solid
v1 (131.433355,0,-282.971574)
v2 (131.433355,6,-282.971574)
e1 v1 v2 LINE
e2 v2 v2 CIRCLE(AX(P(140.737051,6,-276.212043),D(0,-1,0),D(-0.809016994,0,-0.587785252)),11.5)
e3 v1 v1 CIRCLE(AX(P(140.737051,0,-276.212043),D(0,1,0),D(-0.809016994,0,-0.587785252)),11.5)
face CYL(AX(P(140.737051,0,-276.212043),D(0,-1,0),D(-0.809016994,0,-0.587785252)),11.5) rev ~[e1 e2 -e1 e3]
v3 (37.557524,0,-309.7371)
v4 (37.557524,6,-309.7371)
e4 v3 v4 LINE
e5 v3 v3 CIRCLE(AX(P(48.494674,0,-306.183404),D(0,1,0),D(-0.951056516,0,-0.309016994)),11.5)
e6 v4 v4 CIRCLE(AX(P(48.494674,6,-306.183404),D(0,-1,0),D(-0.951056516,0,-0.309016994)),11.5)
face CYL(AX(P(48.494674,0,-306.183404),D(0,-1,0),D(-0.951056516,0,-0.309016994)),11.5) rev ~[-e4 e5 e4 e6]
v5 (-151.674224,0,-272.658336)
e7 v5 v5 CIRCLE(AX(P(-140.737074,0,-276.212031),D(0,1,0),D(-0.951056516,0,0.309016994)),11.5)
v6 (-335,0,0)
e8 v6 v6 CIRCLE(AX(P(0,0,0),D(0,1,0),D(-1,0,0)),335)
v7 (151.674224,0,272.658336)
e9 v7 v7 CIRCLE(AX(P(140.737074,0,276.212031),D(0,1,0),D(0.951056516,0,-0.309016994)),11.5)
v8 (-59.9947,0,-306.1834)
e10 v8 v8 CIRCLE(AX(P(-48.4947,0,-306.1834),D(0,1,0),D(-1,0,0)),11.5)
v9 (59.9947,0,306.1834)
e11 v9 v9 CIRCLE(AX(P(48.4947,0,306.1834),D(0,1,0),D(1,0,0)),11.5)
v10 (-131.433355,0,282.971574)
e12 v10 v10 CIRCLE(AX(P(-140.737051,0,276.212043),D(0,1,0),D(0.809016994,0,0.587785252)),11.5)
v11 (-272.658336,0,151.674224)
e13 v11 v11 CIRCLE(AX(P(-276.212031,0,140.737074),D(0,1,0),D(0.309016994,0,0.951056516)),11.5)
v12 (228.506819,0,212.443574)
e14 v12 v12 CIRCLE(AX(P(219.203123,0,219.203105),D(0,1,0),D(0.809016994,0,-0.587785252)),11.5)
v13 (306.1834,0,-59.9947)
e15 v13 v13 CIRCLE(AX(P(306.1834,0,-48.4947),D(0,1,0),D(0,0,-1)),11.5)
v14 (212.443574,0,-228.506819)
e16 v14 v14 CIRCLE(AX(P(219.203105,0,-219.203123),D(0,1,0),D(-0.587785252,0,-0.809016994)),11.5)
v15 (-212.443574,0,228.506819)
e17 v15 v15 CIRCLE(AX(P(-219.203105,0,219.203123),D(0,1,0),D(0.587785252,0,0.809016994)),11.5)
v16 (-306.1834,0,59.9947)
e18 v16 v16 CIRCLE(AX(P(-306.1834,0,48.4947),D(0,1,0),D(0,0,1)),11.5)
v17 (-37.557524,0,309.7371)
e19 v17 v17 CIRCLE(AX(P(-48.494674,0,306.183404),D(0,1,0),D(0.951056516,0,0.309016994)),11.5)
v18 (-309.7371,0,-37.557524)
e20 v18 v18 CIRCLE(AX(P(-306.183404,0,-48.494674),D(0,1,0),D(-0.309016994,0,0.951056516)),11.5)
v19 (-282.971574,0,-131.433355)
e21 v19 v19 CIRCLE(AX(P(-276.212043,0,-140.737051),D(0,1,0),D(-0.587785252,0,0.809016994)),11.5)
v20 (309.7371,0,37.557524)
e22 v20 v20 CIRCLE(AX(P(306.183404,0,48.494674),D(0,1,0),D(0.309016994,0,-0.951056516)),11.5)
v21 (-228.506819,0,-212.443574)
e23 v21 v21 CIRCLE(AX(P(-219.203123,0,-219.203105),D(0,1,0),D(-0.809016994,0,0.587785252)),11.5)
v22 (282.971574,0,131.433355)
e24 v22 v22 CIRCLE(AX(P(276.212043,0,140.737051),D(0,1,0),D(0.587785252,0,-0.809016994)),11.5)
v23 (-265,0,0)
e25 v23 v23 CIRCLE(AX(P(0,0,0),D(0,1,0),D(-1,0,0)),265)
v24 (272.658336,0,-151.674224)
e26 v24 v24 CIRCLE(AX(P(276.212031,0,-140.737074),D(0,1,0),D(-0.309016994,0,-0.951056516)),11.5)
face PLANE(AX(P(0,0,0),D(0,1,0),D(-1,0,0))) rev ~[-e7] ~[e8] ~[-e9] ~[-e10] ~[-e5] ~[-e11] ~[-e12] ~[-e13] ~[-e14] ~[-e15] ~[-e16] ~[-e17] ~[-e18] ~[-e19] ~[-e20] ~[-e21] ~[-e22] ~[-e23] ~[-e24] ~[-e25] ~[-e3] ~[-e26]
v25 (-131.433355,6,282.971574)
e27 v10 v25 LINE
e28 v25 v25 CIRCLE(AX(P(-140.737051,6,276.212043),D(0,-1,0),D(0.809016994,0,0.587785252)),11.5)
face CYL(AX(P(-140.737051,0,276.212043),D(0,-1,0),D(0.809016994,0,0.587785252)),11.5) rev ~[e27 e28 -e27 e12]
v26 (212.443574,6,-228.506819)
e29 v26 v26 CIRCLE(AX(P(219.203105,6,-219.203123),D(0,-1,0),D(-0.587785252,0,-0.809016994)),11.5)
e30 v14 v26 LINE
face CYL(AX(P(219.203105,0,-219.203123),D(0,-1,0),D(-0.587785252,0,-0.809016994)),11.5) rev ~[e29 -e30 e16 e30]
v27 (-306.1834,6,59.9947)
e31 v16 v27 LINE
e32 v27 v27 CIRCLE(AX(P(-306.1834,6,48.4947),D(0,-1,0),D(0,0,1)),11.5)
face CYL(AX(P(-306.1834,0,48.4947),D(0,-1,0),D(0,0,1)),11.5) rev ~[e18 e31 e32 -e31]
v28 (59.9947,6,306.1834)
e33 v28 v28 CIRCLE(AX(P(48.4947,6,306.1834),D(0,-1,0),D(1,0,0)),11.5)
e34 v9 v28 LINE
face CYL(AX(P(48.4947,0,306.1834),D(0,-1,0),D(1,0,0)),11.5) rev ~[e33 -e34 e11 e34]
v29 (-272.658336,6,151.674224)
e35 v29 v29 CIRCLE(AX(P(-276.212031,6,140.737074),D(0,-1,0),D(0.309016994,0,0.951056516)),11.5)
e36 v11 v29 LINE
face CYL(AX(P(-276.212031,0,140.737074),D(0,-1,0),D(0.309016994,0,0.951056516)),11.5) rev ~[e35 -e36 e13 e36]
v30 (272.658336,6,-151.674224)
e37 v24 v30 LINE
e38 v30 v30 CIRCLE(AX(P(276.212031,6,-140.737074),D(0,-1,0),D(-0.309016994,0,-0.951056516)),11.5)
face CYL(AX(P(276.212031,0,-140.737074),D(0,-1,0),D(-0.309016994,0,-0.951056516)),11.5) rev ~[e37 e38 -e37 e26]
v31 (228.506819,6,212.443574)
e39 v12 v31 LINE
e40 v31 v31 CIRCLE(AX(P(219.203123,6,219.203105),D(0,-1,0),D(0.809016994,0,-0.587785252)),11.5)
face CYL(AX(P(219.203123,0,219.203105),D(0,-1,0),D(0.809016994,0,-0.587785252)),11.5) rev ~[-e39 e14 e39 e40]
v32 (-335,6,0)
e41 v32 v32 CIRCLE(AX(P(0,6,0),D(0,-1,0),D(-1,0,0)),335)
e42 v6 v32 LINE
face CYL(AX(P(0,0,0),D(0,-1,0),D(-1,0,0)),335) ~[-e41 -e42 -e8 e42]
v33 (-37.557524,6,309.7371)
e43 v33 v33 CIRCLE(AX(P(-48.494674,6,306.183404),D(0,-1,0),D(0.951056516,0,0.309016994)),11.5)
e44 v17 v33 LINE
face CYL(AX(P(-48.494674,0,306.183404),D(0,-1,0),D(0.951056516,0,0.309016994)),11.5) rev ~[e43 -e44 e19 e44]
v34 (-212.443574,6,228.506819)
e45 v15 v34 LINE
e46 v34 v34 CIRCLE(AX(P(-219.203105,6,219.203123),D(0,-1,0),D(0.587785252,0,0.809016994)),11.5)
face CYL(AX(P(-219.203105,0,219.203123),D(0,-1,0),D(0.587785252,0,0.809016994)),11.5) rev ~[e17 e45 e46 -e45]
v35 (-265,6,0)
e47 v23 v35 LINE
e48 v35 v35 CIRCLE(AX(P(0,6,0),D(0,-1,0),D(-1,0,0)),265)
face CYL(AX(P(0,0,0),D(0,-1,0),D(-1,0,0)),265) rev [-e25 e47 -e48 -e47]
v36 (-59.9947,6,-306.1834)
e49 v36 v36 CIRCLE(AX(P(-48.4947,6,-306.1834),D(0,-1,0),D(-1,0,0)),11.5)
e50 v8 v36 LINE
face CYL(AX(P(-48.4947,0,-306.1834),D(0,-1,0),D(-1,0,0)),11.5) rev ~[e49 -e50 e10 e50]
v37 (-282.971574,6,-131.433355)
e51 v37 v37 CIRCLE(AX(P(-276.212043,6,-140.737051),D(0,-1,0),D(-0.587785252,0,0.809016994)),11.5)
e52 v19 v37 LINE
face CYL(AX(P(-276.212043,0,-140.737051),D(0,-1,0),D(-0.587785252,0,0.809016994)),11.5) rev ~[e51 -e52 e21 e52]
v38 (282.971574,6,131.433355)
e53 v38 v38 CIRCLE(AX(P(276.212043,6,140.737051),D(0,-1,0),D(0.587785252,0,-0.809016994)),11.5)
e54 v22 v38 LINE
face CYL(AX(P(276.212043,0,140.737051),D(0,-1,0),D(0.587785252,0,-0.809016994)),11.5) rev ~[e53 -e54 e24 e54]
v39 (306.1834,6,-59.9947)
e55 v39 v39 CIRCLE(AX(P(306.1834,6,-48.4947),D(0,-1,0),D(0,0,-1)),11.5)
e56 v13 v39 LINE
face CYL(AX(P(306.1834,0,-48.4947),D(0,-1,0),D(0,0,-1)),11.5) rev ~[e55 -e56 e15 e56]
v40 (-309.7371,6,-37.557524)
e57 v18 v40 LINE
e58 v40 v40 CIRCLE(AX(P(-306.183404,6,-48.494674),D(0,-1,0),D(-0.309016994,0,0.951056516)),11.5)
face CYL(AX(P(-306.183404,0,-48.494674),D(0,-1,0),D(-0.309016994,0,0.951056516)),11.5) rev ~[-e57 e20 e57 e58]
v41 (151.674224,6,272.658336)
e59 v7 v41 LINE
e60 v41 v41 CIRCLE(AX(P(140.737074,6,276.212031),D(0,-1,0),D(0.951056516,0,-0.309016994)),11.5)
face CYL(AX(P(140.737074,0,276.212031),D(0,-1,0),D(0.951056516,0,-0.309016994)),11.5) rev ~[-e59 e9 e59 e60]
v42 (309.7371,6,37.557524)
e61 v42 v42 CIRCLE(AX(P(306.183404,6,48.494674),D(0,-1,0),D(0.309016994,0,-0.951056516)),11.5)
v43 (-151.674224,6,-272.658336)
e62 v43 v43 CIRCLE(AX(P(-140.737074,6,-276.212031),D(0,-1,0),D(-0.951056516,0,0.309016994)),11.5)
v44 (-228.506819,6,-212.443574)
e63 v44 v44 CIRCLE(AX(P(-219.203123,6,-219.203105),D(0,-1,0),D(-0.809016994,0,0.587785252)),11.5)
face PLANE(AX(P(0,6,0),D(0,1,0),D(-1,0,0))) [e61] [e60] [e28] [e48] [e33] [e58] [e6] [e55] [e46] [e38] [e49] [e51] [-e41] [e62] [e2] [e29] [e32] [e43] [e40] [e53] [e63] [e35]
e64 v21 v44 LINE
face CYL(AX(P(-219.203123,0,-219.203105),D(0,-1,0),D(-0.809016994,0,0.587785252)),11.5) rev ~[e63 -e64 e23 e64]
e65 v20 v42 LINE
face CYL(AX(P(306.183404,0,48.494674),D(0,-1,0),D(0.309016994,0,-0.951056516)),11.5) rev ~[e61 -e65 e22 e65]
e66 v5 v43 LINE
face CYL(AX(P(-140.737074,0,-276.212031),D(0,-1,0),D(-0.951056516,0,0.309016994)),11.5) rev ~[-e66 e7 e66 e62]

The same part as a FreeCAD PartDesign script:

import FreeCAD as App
import Part
import Sketcher
from FreeCAD import Vector
Q = App.Units.Quantity

doc = App.newDocument("Part")
body = doc.addObject("PartDesign::Body", "Body")

# Sketch on XZ plane
sketch1 = body.newObject("Sketcher::SketchObject", "Sketch")
sketch1.AttachmentSupport = (doc.getObject("XZ_Plane"), [""])
sketch1.MapMode = "FlatFace"
sketch1.addGeometry([
    Part.Circle(Vector(0, 0, 0), Vector(0, 0, 1), 335),
    Part.Circle(Vector(0, 0, 0), Vector(0, 0, 1), 265),
], False)
sketch1.addConstraint([
    Sketcher.Constraint("Coincident", 0, 3, -1, 1),
    Sketcher.Constraint("Coincident", 1, 3, -1, 1),
    Sketcher.Constraint("Diameter", 0, Q("670 mm")),
    Sketcher.Constraint("Diameter", 1, Q("530 mm")),
])
pad1 = body.newObject("PartDesign::Pad", "Pad")
pad1.Profile = sketch1
pad1.Length = 6
pad1.Reversed = True

# Sketch on XZ plane
sketch2 = body.newObject("Sketcher::SketchObject", "Sketch001")
sketch2.AttachmentSupport = (doc.getObject("XZ_Plane"), [""])
sketch2.MapMode = "FlatFace"
sketch2.addGeometry(Part.Circle(Vector(48.4947, 306.1834, 0), Vector(0, 0, 1), 11.5), False)
sketch2.addConstraint([
    Sketcher.Constraint("Diameter", 0, Q("23 mm")),
    Sketcher.Constraint("DistanceX", -1, 1, 0, 3, Q("48.4947 mm")),
    Sketcher.Constraint("DistanceY", -1, 1, 0, 3, Q("306.1834 mm")),
])
pocket1 = body.newObject("PartDesign::Pocket", "Pocket")
pocket1.Profile = sketch2
pocket1.Length = 12
doc.recompute()

polarpattern = body.newObject("PartDesign::PolarPattern", "PolarPattern")
polarpattern.Originals = [pocket1]
polarpattern.Axis = (doc.getObject("Y_Axis"), [""])
polarpattern.Angle = 360
polarpattern.Occurrences = 20
body.Tip = polarpattern

doc.recompute()
